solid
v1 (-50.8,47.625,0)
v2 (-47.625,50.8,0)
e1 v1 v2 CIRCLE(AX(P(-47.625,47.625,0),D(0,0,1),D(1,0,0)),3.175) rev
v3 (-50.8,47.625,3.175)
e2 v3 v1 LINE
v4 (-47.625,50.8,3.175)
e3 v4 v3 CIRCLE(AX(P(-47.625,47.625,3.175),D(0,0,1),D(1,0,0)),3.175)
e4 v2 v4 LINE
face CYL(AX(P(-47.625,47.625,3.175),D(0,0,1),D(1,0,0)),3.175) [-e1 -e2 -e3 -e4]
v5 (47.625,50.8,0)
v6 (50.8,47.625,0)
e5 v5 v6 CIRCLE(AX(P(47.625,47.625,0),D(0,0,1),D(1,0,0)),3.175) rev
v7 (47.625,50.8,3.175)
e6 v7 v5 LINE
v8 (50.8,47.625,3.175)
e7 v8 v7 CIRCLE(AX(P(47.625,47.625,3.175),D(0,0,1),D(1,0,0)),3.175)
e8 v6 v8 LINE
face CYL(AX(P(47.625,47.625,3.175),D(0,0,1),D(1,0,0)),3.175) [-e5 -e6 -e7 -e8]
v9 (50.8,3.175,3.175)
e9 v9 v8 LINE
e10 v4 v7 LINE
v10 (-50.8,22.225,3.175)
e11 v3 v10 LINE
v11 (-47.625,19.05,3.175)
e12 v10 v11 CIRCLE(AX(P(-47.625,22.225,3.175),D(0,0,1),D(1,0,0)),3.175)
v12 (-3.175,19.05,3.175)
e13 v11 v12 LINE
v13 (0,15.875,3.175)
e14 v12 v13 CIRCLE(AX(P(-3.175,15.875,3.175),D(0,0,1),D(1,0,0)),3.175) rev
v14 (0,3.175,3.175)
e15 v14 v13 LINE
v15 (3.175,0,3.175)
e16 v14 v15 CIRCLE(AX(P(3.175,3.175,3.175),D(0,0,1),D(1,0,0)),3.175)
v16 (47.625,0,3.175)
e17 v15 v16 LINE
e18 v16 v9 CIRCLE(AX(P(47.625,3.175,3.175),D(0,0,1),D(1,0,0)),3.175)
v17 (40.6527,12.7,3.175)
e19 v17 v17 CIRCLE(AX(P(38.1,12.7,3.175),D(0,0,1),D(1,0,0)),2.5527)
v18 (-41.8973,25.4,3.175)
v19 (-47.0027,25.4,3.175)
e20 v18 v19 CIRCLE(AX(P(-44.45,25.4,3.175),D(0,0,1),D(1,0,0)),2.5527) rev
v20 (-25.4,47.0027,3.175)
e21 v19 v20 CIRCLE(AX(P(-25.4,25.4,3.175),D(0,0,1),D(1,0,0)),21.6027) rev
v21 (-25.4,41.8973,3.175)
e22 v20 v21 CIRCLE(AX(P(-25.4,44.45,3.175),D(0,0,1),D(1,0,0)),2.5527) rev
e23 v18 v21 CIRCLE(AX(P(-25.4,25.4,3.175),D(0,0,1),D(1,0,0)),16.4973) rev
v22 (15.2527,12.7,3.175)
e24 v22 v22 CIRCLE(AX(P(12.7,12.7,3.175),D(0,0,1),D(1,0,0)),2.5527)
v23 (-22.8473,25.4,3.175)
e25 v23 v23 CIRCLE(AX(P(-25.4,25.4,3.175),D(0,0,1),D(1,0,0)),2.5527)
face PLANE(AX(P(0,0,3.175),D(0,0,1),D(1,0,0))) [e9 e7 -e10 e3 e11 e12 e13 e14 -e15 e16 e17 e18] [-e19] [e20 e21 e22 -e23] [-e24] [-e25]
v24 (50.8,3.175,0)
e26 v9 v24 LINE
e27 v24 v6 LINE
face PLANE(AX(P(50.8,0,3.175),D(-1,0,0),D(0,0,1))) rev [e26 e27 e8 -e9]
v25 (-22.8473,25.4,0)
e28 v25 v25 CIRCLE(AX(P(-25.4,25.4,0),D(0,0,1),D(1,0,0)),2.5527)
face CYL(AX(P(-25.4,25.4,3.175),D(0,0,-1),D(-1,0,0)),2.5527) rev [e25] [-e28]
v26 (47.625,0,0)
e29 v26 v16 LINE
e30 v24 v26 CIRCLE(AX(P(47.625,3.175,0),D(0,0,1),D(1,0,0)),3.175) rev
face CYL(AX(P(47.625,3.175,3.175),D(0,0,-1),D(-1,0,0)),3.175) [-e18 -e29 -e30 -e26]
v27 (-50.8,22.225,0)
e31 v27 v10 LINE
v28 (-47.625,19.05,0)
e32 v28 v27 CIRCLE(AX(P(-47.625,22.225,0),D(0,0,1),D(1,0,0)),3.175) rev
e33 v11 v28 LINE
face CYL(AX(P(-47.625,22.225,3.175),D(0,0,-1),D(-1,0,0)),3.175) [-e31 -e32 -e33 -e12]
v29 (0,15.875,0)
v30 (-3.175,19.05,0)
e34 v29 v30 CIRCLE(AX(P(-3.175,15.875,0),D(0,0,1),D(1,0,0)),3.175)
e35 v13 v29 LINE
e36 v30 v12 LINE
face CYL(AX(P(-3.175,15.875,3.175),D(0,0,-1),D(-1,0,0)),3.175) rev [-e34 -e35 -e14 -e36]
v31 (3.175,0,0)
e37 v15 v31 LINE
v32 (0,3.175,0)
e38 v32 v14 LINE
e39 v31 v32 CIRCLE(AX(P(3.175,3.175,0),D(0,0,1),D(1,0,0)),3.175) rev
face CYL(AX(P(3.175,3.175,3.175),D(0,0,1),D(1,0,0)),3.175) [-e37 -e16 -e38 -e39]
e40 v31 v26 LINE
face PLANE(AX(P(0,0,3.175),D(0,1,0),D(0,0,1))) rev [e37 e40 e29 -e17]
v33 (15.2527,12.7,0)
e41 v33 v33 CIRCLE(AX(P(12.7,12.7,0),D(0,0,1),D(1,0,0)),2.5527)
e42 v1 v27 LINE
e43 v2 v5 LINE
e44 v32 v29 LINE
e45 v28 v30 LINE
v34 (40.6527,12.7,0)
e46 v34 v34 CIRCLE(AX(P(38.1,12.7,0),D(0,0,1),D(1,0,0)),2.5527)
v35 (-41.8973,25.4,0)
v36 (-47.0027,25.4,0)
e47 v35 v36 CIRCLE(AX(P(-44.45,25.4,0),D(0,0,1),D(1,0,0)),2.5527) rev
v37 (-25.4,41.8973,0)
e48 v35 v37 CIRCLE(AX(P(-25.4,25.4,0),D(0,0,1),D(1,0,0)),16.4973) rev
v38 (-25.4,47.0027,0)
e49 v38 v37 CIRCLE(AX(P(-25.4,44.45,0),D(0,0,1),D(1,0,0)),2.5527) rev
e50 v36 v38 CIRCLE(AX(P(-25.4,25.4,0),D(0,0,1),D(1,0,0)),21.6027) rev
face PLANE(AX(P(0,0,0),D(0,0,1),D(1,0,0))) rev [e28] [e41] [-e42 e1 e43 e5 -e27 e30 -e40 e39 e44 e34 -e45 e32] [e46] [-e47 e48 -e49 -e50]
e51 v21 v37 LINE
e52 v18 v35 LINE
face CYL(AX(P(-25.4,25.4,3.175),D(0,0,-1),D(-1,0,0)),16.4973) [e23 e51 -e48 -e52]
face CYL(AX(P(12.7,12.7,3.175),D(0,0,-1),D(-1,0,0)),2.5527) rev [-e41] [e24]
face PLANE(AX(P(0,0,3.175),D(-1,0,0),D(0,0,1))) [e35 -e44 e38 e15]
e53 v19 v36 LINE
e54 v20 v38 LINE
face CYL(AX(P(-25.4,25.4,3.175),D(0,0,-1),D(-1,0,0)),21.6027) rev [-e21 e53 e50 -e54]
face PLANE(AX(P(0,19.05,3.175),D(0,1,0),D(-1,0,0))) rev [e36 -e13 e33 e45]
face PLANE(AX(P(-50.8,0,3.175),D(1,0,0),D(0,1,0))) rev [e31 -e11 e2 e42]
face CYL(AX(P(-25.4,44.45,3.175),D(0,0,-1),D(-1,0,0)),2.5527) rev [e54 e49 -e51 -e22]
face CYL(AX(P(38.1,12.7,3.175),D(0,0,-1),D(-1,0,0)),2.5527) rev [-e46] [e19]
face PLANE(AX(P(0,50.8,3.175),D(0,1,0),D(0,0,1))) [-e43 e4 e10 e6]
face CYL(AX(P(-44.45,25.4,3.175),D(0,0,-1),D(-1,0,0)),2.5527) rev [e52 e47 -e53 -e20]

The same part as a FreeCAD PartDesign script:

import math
import FreeCAD as App
import Part
import Sketcher
Q = App.Units.Quantity


def edges_at(feature, points):
    """Names of the edges that pass closest to the given points."""
    edges = feature.Shape.Edges
    near = lambda p: min(range(len(edges)), key=lambda i: edges[i].distToShape(Part.Vertex(*p))[0])
    return sorted({f"Edge{near(p) + 1}" for p in points})

doc = App.newDocument("Part")
body = doc.addObject("PartDesign::Body", "Body")

# Sketch on XY plane
sketch1 = body.newObject("Sketcher::SketchObject", "Sketch")
sketch1.AttachmentSupport = (doc.getObject("XY_Plane"), [""])
sketch1.MapMode = "FlatFace"
sketch1.addGeometry([
    Part.LineSegment(App.Vector(0, 19.1, 0), App.Vector(0, 0, 0)),  # 0
    Part.LineSegment(App.Vector(0, 0, 0), App.Vector(50.8, 0, 0)),  # 1
    Part.LineSegment(App.Vector(50.8, 0, 0), App.Vector(50.8, 50.8, 0)),  # 2
    Part.LineSegment(App.Vector(50.8, 50.8, 0), App.Vector(-50.8, 50.8, 0)),  # 3
    Part.LineSegment(App.Vector(-50.8, 50.8, 0), App.Vector(-50.8, 19.1, 0)),  # 4
    Part.LineSegment(App.Vector(-50.8, 19.1, 0), App.Vector(0, 19.1, 0)),  # 5
    Part.Circle(App.Vector(12.7, 12.7, 0), App.Vector(0, 0, 1), 2.6),  # 6
    Part.Circle(App.Vector(38.1, 12.7, 0), App.Vector(0, 0, 1), 2.6),  # 7
    Part.ArcOfCircle(Part.Circle(App.Vector(-44.5, 25.4, 0), App.Vector(0, 0, 1), 2.6), math.radians(180), math.radians(360)),  # 8
    Part.ArcOfCircle(Part.Circle(App.Vector(-25.4, 25.4, 0), App.Vector(0, 0, 1), 21.6), math.radians(90), math.radians(180)),  # 9
    Part.ArcOfCircle(Part.Circle(App.Vector(-25.4, 44.5, 0), App.Vector(0, 0, 1), 2.6), math.radians(-90), math.radians(90)),  # 10
    Part.ArcOfCircle(Part.Circle(App.Vector(-25.4, 25.4, 0), App.Vector(0, 0, 1), 16.5), math.radians(90), math.radians(180)),  # 11
    Part.Circle(App.Vector(-25.4, 25.4, 0), App.Vector(0, 0, 1), 2.6),  # 12
], False)
sketch1.addConstraint([
    Sketcher.Constraint("Coincident", 0, 2, 1, 1),
    Sketcher.Constraint("Coincident", 1, 2, 2, 1),
    Sketcher.Constraint("Coincident", 2, 2, 3, 1),
    Sketcher.Constraint("Coincident", 3, 2, 4, 1),
    Sketcher.Constraint("Coincident", 4, 2, 5, 1),
    Sketcher.Constraint("Coincident", 5, 2, 0, 1),
    Sketcher.Constraint("Tangent", 8, 1, 9, 2),
    Sketcher.Constraint("Tangent", 9, 1, 10, 2),
    Sketcher.Constraint("Tangent", 10, 1, 11, 1),
    Sketcher.Constraint("Tangent", 11, 2, 8, 2),
    Sketcher.Constraint("Vertical", 0),
    Sketcher.Constraint("Horizontal", 1),
    Sketcher.Constraint("Vertical", 2),
    Sketcher.Constraint("Horizontal", 3),
    Sketcher.Constraint("Vertical", 4),
    Sketcher.Constraint("Horizontal", 5),
    Sketcher.Constraint("Coincident", 0, 2, -1, 1),
    Sketcher.Constraint("Coincident", 11, 3, 9, 3),
    Sketcher.Constraint("Coincident", 12, 3, 9, 3),
    Sketcher.Constraint("Equal", 6, 7),
    Sketcher.Constraint("Equal", 7, 8),
    Sketcher.Constraint("Equal", 10, 12),
    Sketcher.Constraint("Horizontal", 6, 3, 7, 3),
    Sketcher.Constraint("Horizontal", 8, 3, 9, 3),
    Sketcher.Constraint("Vertical", 9, 3, 10, 3),
    Sketcher.Constraint("Equal", 1, 5),
    Sketcher.Constraint("Equal", 5, 2),
    Sketcher.Constraint("DistanceX", 1, 1, 1, 2, Q("2 in")),
    Sketcher.Constraint("Diameter", 6, Q("0.201 in")),
    Sketcher.Constraint("DistanceY", -1, 1, 8, 3, Q("1 in")),
    Sketcher.Constraint("DistanceX", 9, 3, -1, 1, Q("1 in")),
    Sketcher.Constraint("DistanceX", 6, 3, 7, 3, Q("1 in")),
    Sketcher.Constraint("DistanceY", 0, 2, 0, 1, Q("0.75 in")),
    Sketcher.Constraint("DistanceX", -1, 1, 6, 3, Q("0.5 in")),
    Sketcher.Constraint("DistanceY", -1, 1, 6, 3, Q("0.5 in")),
    Sketcher.Constraint("Radius", 9, Q("0.8505 in")),
])
pad1 = body.newObject("PartDesign::Pad", "Pad")
pad1.Profile = sketch1
pad1.Length = Q("0.125 in")
doc.recompute()

fillet = body.newObject("PartDesign::Fillet", "Fillet")
fillet.Base = (pad1, edges_at(pad1, [
    (0, 0, 1.587),
    (0, 19.05, 1.587),
    (-50.8, 19.05, 1.587),
    (-50.8, 50.8, 1.587),
    (50.8, 50.8, 1.587),
    (50.8, 0, 1.587),
]))
fillet.Radius = Q("0.125 in")

doc.recompute()
